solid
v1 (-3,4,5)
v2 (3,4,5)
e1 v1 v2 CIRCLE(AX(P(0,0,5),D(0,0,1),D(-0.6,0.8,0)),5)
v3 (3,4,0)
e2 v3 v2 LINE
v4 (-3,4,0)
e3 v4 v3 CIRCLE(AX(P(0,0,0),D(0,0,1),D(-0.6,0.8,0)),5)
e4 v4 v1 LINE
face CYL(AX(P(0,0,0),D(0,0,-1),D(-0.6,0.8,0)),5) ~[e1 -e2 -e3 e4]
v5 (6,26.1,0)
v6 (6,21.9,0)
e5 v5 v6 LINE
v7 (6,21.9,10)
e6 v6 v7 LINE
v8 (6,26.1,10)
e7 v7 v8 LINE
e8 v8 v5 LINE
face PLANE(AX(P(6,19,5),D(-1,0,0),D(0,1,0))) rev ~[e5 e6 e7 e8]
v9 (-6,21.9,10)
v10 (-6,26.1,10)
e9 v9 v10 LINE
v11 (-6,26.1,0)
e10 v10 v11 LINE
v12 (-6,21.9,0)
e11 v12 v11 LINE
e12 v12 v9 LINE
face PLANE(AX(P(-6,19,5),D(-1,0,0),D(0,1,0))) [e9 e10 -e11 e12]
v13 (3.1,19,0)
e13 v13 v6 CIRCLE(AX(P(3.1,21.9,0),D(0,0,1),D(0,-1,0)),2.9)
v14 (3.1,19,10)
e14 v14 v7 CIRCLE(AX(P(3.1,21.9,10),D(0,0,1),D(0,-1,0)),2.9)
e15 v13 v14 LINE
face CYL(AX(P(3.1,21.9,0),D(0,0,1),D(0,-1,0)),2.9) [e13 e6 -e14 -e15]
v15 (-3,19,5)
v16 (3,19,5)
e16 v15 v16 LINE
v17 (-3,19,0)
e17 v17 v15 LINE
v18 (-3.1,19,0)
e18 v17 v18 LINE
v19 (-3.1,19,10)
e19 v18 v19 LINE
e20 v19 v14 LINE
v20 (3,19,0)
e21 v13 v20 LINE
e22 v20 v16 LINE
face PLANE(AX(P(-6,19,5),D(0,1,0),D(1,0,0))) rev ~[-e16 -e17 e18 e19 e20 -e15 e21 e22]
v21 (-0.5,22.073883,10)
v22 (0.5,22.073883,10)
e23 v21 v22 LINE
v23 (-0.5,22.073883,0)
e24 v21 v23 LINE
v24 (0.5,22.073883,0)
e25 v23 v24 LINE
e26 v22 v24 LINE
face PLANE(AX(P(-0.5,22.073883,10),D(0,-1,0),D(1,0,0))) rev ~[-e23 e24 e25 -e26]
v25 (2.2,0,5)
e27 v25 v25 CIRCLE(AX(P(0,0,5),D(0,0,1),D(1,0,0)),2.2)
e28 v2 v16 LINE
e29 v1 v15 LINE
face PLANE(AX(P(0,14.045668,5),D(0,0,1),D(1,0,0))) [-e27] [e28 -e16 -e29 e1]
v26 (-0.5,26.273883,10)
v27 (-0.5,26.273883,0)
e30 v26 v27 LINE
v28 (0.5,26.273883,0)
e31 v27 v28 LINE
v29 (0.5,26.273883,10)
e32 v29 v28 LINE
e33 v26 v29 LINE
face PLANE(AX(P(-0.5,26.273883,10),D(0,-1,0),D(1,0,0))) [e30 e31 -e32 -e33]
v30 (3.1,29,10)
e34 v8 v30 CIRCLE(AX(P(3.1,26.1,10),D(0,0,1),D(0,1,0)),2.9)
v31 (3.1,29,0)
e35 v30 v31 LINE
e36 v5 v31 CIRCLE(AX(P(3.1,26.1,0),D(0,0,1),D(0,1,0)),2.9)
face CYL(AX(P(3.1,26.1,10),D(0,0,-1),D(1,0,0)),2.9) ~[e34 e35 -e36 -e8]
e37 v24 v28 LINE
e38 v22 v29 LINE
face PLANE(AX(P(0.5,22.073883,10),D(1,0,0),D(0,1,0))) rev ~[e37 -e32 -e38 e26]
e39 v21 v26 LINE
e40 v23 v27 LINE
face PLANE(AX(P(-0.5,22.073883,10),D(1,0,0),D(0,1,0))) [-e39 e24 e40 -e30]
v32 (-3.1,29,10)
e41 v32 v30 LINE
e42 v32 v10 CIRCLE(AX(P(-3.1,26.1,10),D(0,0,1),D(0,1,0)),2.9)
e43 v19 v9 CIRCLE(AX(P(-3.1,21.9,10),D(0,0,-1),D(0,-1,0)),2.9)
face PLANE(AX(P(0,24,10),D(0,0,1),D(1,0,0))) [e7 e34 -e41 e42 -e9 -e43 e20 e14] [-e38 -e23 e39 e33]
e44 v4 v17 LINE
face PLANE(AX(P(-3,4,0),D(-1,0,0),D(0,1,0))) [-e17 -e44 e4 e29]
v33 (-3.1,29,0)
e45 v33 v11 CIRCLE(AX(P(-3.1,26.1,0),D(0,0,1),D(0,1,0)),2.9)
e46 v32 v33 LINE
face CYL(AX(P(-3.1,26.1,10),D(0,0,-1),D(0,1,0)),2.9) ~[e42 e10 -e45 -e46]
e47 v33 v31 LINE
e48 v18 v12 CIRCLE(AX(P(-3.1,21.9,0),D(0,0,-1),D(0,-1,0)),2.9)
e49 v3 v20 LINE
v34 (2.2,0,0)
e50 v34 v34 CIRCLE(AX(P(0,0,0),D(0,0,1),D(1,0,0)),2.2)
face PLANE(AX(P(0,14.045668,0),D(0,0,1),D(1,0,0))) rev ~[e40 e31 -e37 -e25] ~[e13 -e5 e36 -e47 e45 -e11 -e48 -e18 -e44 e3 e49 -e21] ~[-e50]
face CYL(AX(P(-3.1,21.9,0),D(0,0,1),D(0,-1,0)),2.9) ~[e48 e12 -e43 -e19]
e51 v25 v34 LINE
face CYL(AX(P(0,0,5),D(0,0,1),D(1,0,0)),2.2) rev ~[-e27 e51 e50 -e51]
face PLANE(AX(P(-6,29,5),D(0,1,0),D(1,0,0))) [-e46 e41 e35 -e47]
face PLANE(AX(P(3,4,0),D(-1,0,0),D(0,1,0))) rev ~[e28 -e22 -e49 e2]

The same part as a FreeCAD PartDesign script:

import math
import FreeCAD as App
import Part
import Sketcher
Q = App.Units.Quantity


def edges_at(feature, points):
    """Names of the edges that pass closest to the given points."""
    edges = feature.Shape.Edges
    near = lambda p: min(range(len(edges)), key=lambda i: edges[i].distToShape(Part.Vertex(*p))[0])
    return sorted({f"Edge{near(p) + 1}" for p in points})


def add_polygon(sketch, points):
    """Adds a closed chain of lines whose ends are joined by coincident constraints."""
    first, n = sketch.GeometryCount, len(points)
    for a, b in zip(points, points[1:] + points[:1]):
        sketch.addGeometry(Part.LineSegment(App.Vector(*a, 0), App.Vector(*b, 0)), False)
    for i in range(n):
        sketch.addConstraint(Sketcher.Constraint("Coincident", first + i, 2, first + (i + 1) % n, 1))

doc = App.newDocument("Part")
params = doc.addObject("Spreadsheet::Sheet", "Params")
for row, (alias, value) in enumerate([
    ("sketch1_radius", "5 mm"),
    ("sketch1_width", "3 mm"),
    ("sketch1_width2", "12 mm"),
    ("sketch1_height", "15 mm"),
    ("sketch1_height2", "10 mm"),
    ("pad1_length", "5 mm"),
    ("sketch2_width", "12 mm"),
    ("sketch2_height", "10 mm"),
    ("pad2_length", "5 mm"),
    ("sketch3_width", "1 mm"),
    ("sketch3_height", "4.2 mm"),
    ("pocket1_length", "10 mm"),
    ("fillet_radius", "2.9 mm"),
    ("fillet2_radius", "2.9 mm"),
    ("fillet3_radius", "2.9 mm"),
    ("fillet4_radius", "2.9 mm"),
    ("sketch4_diameter", "4.4 mm"),
    ("pocket2_length", "5 mm"),
], start=1):
    params.set(f"A{row}", alias)
    params.set(f"B{row}", "=" + value)
    params.setAlias(f"B{row}", alias)

body = doc.addObject("PartDesign::Body", "Body")

# Sketch on XY plane
sketch1 = body.newObject("Sketcher::SketchObject", "Sketch")
sketch1.AttachmentSupport = (doc.getObject("XY_Plane"), [""])
sketch1.MapMode = "FlatFace"
sketch1.addGeometry(Part.ArcOfCircle(Part.Circle(App.Vector(0, 0, 0), App.Vector(0, 0, 1), 5), math.radians(127), math.radians(413)), False)
sketch1.addGeometry(Part.LineSegment(App.Vector(3, 4, 0), App.Vector(3, 19, 0)), False)
sketch1.addGeometry(Part.LineSegment(App.Vector(3, 19, 0), App.Vector(6, 19, 0)), False)
sketch1.addGeometry(Part.LineSegment(App.Vector(6, 19, 0), App.Vector(6, 29, 0)), False)
sketch1.addGeometry(Part.LineSegment(App.Vector(6, 29, 0), App.Vector(-6, 29, 0)), False)
sketch1.addGeometry(Part.LineSegment(App.Vector(-6, 29, 0), App.Vector(-6, 19, 0)), False)
sketch1.addGeometry(Part.LineSegment(App.Vector(-6, 19, 0), App.Vector(-3, 19, 0)), False)
sketch1.addGeometry(Part.LineSegment(App.Vector(-3, 19, 0), App.Vector(-3, 4, 0)), False)
sketch1.addConstraint(Sketcher.Constraint("Coincident", 0, 2, 1, 1))
sketch1.addConstraint(Sketcher.Constraint("Coincident", 1, 2, 2, 1))
sketch1.addConstraint(Sketcher.Constraint("Coincident", 2, 2, 3, 1))
sketch1.addConstraint(Sketcher.Constraint("Coincident", 3, 2, 4, 1))
sketch1.addConstraint(Sketcher.Constraint("Coincident", 4, 2, 5, 1))
sketch1.addConstraint(Sketcher.Constraint("Coincident", 5, 2, 6, 1))
sketch1.addConstraint(Sketcher.Constraint("Coincident", 6, 2, 7, 1))
sketch1.addConstraint(Sketcher.Constraint("Coincident", 7, 2, 0, 1))
sketch1.addConstraint(Sketcher.Constraint("Vertical", 1))
sketch1.addConstraint(Sketcher.Constraint("Horizontal", 2))
sketch1.addConstraint(Sketcher.Constraint("Vertical", 3))
sketch1.addConstraint(Sketcher.Constraint("Horizontal", 4))
sketch1.addConstraint(Sketcher.Constraint("Vertical", 5))
sketch1.addConstraint(Sketcher.Constraint("Horizontal", 6))
sketch1.addConstraint(Sketcher.Constraint("Vertical", 7))
sketch1.addConstraint(Sketcher.Constraint("Coincident", 0, 3, -1, 1))
sketch1.addConstraint(Sketcher.Constraint("Symmetric", 2, 2, 5, 2, -2))
sketch1.addConstraint(Sketcher.Constraint("Horizontal", 0, 2, 7, 2))
sketch1.addConstraint(Sketcher.Constraint("Radius", 0, Q("5 mm")))
sketch1.addConstraint(Sketcher.Constraint("DistanceX", 2, 1, 2, 2, Q("3 mm")))
sketch1.addConstraint(Sketcher.Constraint("DistanceX", 4, 2, 4, 1, Q("12 mm")))
sketch1.addConstraint(Sketcher.Constraint("DistanceY", 1, 1, 1, 2, Q("15 mm")))
sketch1.addConstraint(Sketcher.Constraint("DistanceY", 3, 1, 3, 2, Q("10 mm")))
sketch1.setExpression("Constraints[18]", "Params.sketch1_radius")
sketch1.setExpression("Constraints[19]", "Params.sketch1_width")
sketch1.setExpression("Constraints[20]", "Params.sketch1_width2")
sketch1.setExpression("Constraints[21]", "Params.sketch1_height")
sketch1.setExpression("Constraints[22]", "Params.sketch1_height2")
pad1 = body.newObject("PartDesign::Pad", "Pad")
pad1.Profile = sketch1
pad1.setExpression("Length", "Params.pad1_length")

# Sketch on XY plane
sketch2 = body.newObject("Sketcher::SketchObject", "Sketch001")
sketch2.AttachmentSupport = (doc.getObject("XY_Plane"), [""])
sketch2.MapMode = "FlatFace"
sketch2.AttachmentOffset = App.Placement(App.Vector(0, 0, 5), App.Rotation())
add_polygon(sketch2, [(-6, 29), (-6, 19), (6, 19), (6, 29)])  # lines 0-3
sketch2.addConstraint(Sketcher.Constraint("Vertical", 0))
sketch2.addConstraint(Sketcher.Constraint("Horizontal", 1))
sketch2.addConstraint(Sketcher.Constraint("Vertical", 2))
sketch2.addConstraint(Sketcher.Constraint("Horizontal", 3))
sketch2.addConstraint(Sketcher.Constraint("DistanceX", 1, 1, 1, 2, Q("12 mm")))
sketch2.addConstraint(Sketcher.Constraint("DistanceY", 0, 2, 0, 1, Q("10 mm")))
sketch2.addConstraint(Sketcher.Constraint("DistanceX", 0, 2, -1, 1, Q("6 mm")))
sketch2.addConstraint(Sketcher.Constraint("DistanceY", -1, 1, 0, 2, Q("19 mm")))
sketch2.setExpression("Constraints[8]", "Params.sketch2_width")
sketch2.setExpression("Constraints[9]", "Params.sketch2_height")
pad2 = body.newObject("PartDesign::Pad", "Pad001")
pad2.Profile = sketch2
pad2.setExpression("Length", "Params.pad2_length")

# Sketch on XY plane
sketch3 = body.newObject("Sketcher::SketchObject", "Sketch002")
sketch3.AttachmentSupport = (doc.getObject("XY_Plane"), [""])
sketch3.MapMode = "FlatFace"
sketch3.AttachmentOffset = App.Placement(App.Vector(0, 0, 10), App.Rotation())
add_polygon(sketch3, [(-0.5, 26.3), (-0.5, 22.1), (0.5, 22.1), (0.5, 26.3)])  # lines 0-3
sketch3.addConstraint(Sketcher.Constraint("Vertical", 0))
sketch3.addConstraint(Sketcher.Constraint("Horizontal", 1))
sketch3.addConstraint(Sketcher.Constraint("Vertical", 2))
sketch3.addConstraint(Sketcher.Constraint("Horizontal", 3))
sketch3.addConstraint(Sketcher.Constraint("DistanceX", 1, 1, 1, 2, Q("1 mm")))
sketch3.addConstraint(Sketcher.Constraint("DistanceY", 0, 2, 0, 1, Q("4.2 mm")))
sketch3.addConstraint(Sketcher.Constraint("DistanceX", 0, 2, -1, 1, Q("0.5 mm")))
sketch3.addConstraint(Sketcher.Constraint("DistanceY", -1, 1, 0, 2, Q("22.073883 mm")))
sketch3.setExpression("Constraints[8]", "Params.sketch3_width")
sketch3.setExpression("Constraints[9]", "Params.sketch3_height")
pocket1 = body.newObject("PartDesign::Pocket", "Pocket")
pocket1.Profile = sketch3
pocket1.setExpression("Length", "Params.pocket1_length")
doc.recompute()

fillet = body.newObject("PartDesign::Fillet", "Fillet")
fillet.Base = (pocket1, edges_at(pocket1, [(6, 19, 5)]))
fillet.setExpression("Radius", "Params.fillet_radius")
doc.recompute()

fillet2 = body.newObject("PartDesign::Fillet", "Fillet001")
fillet2.Base = (fillet, edges_at(fillet, [(-6, 19, 5)]))
fillet2.setExpression("Radius", "Params.fillet2_radius")
doc.recompute()

fillet3 = body.newObject("PartDesign::Fillet", "Fillet002")
fillet3.Base = (fillet2, edges_at(fillet2, [(6, 29, 5)]))
fillet3.setExpression("Radius", "Params.fillet3_radius")
doc.recompute()

fillet4 = body.newObject("PartDesign::Fillet", "Fillet003")
fillet4.Base = (fillet3, edges_at(fillet3, [(-6, 29, 5)]))
fillet4.setExpression("Radius", "Params.fillet4_radius")

# Sketch on XY plane
sketch4 = body.newObject("Sketcher::SketchObject", "Sketch003")
sketch4.AttachmentSupport = (doc.getObject("XY_Plane"), [""])
sketch4.MapMode = "FlatFace"
sketch4.AttachmentOffset = App.Placement(App.Vector(0, 0, 5), App.Rotation())
sketch4.addGeometry(Part.Circle(App.Vector(0, 0, 0), App.Vector(0, 0, 1), 2.2), False)
sketch4.addConstraint(Sketcher.Constraint("Coincident", 0, 3, -1, 1))
sketch4.addConstraint(Sketcher.Constraint("Diameter", 0, Q("4.4 mm")))
sketch4.setExpression("Constraints[1]", "Params.sketch4_diameter")
pocket2 = body.newObject("PartDesign::Pocket", "Pocket001")
pocket2.Profile = sketch4
pocket2.setExpression("Length", "Params.pocket2_length")

doc.recompute()
